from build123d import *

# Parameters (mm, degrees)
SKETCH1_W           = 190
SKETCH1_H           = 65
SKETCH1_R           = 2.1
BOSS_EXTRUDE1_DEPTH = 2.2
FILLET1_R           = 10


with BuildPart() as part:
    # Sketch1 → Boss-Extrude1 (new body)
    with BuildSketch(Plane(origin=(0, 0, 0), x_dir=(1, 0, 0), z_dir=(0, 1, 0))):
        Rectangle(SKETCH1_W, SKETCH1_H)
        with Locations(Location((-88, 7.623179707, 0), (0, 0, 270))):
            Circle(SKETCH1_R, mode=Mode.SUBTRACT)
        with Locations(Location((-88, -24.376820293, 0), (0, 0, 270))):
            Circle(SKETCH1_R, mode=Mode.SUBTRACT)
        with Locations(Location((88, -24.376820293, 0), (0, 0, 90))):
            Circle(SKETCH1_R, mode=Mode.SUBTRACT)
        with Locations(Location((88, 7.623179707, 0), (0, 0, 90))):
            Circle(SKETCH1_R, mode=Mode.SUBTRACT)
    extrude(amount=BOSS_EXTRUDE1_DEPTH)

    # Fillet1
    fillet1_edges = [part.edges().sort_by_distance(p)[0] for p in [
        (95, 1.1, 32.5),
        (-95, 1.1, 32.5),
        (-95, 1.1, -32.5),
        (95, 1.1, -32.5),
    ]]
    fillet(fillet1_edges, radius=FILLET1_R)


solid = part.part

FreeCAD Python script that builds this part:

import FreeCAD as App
import Part
import Sketcher
Q = App.Units.Quantity


def edges_at(feature, points):
    """Names of the edges that pass closest to the given points."""
    edges = feature.Shape.Edges
    near = lambda p: min(range(len(edges)), key=lambda i: edges[i].distToShape(Part.Vertex(*p))[0])
    return sorted({f"Edge{near(p) + 1}" for p in points})

doc = App.newDocument("Part")
body = doc.addObject("PartDesign::Body", "Body")

sketch1 = body.newObject("Sketcher::SketchObject", "Sketch")
sketch1.AttachmentSupport = (doc.getObject("XZ_Plane"), [""])
sketch1.MapMode = "FlatFace"
sketch1.addGeometry(Part.LineSegment(App.Vector(-95, -32.5, 0), App.Vector(-95, 32.5, 0)), False)
sketch1.addGeometry(Part.LineSegment(App.Vector(-95, 32.5, 0), App.Vector(95, 32.5, 0)), False)
sketch1.addGeometry(Part.LineSegment(App.Vector(95, 32.5, 0), App.Vector(95, -32.5, 0)), False)
sketch1.addGeometry(Part.LineSegment(App.Vector(95, -32.5, 0), App.Vector(-95, -32.5, 0)), False)
sketch1.addGeometry(Part.Circle(App.Vector(-88, 24.4, 0), App.Vector(0, 0, 1), 2.1), False)
sketch1.addGeometry(Part.Circle(App.Vector(88, 24.4, 0), App.Vector(0, 0, 1), 2.1), False)
sketch1.addGeometry(Part.Circle(App.Vector(-88, -7.6, 0), App.Vector(0, 0, 1), 2.1), False)
sketch1.addGeometry(Part.Circle(App.Vector(88, -7.6, 0), App.Vector(0, 0, 1), 2.1), False)
sketch1.addConstraint(Sketcher.Constraint("Coincident", 0, 2, 1, 1))
sketch1.addConstraint(Sketcher.Constraint("Coincident", 1, 2, 2, 1))
sketch1.addConstraint(Sketcher.Constraint("Coincident", 2, 2, 3, 1))
sketch1.addConstraint(Sketcher.Constraint("Coincident", 3, 2, 0, 1))
sketch1.addConstraint(Sketcher.Constraint("Vertical", 0))
sketch1.addConstraint(Sketcher.Constraint("Horizontal", 1))
sketch1.addConstraint(Sketcher.Constraint("Vertical", 2))
sketch1.addConstraint(Sketcher.Constraint("Horizontal", 3))
sketch1.addConstraint(Sketcher.Constraint("Equal", 4, 5))
sketch1.addConstraint(Sketcher.Constraint("Equal", 5, 6))
sketch1.addConstraint(Sketcher.Constraint("Equal", 6, 7))
sketch1.addConstraint(Sketcher.Constraint("Symmetric", 0, 2, 2, 2, -1, 1))
sketch1.addConstraint(Sketcher.Constraint("Symmetric", 4, 3, 5, 3, -2))
sketch1.addConstraint(Sketcher.Constraint("Symmetric", 6, 3, 7, 3, -2))
sketch1.addConstraint(Sketcher.Constraint("Vertical", 4, 3, 6, 3))
sketch1.addConstraint(Sketcher.Constraint("Diameter", 4, Q("4.2 mm")))
sketch1.addConstraint(Sketcher.Constraint("DistanceX", 1, 1, 1, 2, Q("190 mm")))
sketch1.addConstraint(Sketcher.Constraint("DistanceY", 0, 1, 0, 2, Q("65 mm")))
sketch1.addConstraint(Sketcher.Constraint("DistanceX", 4, 3, -1, 1, Q("88 mm")))
sketch1.addConstraint(Sketcher.Constraint("DistanceY", 6, 3, 4, 3, Q("32 mm")))
sketch1.addConstraint(Sketcher.Constraint("DistanceY", -1, 1, 4, 3, Q("24.37682 mm")))
pad1 = body.newObject("PartDesign::Pad", "Pad")
pad1.Profile = sketch1
pad1.Length = 2.2
pad1.Reversed = True
doc.recompute()

fillet = body.newObject("PartDesign::Fillet", "Fillet")
fillet.Base = (pad1, edges_at(pad1, [
    (95, 1.1, 32.5),
    (-95, 1.1, 32.5),
    (-95, 1.1, -32.5),
    (95, 1.1, -32.5),
]))
fillet.Radius = 10

doc.recompute()
